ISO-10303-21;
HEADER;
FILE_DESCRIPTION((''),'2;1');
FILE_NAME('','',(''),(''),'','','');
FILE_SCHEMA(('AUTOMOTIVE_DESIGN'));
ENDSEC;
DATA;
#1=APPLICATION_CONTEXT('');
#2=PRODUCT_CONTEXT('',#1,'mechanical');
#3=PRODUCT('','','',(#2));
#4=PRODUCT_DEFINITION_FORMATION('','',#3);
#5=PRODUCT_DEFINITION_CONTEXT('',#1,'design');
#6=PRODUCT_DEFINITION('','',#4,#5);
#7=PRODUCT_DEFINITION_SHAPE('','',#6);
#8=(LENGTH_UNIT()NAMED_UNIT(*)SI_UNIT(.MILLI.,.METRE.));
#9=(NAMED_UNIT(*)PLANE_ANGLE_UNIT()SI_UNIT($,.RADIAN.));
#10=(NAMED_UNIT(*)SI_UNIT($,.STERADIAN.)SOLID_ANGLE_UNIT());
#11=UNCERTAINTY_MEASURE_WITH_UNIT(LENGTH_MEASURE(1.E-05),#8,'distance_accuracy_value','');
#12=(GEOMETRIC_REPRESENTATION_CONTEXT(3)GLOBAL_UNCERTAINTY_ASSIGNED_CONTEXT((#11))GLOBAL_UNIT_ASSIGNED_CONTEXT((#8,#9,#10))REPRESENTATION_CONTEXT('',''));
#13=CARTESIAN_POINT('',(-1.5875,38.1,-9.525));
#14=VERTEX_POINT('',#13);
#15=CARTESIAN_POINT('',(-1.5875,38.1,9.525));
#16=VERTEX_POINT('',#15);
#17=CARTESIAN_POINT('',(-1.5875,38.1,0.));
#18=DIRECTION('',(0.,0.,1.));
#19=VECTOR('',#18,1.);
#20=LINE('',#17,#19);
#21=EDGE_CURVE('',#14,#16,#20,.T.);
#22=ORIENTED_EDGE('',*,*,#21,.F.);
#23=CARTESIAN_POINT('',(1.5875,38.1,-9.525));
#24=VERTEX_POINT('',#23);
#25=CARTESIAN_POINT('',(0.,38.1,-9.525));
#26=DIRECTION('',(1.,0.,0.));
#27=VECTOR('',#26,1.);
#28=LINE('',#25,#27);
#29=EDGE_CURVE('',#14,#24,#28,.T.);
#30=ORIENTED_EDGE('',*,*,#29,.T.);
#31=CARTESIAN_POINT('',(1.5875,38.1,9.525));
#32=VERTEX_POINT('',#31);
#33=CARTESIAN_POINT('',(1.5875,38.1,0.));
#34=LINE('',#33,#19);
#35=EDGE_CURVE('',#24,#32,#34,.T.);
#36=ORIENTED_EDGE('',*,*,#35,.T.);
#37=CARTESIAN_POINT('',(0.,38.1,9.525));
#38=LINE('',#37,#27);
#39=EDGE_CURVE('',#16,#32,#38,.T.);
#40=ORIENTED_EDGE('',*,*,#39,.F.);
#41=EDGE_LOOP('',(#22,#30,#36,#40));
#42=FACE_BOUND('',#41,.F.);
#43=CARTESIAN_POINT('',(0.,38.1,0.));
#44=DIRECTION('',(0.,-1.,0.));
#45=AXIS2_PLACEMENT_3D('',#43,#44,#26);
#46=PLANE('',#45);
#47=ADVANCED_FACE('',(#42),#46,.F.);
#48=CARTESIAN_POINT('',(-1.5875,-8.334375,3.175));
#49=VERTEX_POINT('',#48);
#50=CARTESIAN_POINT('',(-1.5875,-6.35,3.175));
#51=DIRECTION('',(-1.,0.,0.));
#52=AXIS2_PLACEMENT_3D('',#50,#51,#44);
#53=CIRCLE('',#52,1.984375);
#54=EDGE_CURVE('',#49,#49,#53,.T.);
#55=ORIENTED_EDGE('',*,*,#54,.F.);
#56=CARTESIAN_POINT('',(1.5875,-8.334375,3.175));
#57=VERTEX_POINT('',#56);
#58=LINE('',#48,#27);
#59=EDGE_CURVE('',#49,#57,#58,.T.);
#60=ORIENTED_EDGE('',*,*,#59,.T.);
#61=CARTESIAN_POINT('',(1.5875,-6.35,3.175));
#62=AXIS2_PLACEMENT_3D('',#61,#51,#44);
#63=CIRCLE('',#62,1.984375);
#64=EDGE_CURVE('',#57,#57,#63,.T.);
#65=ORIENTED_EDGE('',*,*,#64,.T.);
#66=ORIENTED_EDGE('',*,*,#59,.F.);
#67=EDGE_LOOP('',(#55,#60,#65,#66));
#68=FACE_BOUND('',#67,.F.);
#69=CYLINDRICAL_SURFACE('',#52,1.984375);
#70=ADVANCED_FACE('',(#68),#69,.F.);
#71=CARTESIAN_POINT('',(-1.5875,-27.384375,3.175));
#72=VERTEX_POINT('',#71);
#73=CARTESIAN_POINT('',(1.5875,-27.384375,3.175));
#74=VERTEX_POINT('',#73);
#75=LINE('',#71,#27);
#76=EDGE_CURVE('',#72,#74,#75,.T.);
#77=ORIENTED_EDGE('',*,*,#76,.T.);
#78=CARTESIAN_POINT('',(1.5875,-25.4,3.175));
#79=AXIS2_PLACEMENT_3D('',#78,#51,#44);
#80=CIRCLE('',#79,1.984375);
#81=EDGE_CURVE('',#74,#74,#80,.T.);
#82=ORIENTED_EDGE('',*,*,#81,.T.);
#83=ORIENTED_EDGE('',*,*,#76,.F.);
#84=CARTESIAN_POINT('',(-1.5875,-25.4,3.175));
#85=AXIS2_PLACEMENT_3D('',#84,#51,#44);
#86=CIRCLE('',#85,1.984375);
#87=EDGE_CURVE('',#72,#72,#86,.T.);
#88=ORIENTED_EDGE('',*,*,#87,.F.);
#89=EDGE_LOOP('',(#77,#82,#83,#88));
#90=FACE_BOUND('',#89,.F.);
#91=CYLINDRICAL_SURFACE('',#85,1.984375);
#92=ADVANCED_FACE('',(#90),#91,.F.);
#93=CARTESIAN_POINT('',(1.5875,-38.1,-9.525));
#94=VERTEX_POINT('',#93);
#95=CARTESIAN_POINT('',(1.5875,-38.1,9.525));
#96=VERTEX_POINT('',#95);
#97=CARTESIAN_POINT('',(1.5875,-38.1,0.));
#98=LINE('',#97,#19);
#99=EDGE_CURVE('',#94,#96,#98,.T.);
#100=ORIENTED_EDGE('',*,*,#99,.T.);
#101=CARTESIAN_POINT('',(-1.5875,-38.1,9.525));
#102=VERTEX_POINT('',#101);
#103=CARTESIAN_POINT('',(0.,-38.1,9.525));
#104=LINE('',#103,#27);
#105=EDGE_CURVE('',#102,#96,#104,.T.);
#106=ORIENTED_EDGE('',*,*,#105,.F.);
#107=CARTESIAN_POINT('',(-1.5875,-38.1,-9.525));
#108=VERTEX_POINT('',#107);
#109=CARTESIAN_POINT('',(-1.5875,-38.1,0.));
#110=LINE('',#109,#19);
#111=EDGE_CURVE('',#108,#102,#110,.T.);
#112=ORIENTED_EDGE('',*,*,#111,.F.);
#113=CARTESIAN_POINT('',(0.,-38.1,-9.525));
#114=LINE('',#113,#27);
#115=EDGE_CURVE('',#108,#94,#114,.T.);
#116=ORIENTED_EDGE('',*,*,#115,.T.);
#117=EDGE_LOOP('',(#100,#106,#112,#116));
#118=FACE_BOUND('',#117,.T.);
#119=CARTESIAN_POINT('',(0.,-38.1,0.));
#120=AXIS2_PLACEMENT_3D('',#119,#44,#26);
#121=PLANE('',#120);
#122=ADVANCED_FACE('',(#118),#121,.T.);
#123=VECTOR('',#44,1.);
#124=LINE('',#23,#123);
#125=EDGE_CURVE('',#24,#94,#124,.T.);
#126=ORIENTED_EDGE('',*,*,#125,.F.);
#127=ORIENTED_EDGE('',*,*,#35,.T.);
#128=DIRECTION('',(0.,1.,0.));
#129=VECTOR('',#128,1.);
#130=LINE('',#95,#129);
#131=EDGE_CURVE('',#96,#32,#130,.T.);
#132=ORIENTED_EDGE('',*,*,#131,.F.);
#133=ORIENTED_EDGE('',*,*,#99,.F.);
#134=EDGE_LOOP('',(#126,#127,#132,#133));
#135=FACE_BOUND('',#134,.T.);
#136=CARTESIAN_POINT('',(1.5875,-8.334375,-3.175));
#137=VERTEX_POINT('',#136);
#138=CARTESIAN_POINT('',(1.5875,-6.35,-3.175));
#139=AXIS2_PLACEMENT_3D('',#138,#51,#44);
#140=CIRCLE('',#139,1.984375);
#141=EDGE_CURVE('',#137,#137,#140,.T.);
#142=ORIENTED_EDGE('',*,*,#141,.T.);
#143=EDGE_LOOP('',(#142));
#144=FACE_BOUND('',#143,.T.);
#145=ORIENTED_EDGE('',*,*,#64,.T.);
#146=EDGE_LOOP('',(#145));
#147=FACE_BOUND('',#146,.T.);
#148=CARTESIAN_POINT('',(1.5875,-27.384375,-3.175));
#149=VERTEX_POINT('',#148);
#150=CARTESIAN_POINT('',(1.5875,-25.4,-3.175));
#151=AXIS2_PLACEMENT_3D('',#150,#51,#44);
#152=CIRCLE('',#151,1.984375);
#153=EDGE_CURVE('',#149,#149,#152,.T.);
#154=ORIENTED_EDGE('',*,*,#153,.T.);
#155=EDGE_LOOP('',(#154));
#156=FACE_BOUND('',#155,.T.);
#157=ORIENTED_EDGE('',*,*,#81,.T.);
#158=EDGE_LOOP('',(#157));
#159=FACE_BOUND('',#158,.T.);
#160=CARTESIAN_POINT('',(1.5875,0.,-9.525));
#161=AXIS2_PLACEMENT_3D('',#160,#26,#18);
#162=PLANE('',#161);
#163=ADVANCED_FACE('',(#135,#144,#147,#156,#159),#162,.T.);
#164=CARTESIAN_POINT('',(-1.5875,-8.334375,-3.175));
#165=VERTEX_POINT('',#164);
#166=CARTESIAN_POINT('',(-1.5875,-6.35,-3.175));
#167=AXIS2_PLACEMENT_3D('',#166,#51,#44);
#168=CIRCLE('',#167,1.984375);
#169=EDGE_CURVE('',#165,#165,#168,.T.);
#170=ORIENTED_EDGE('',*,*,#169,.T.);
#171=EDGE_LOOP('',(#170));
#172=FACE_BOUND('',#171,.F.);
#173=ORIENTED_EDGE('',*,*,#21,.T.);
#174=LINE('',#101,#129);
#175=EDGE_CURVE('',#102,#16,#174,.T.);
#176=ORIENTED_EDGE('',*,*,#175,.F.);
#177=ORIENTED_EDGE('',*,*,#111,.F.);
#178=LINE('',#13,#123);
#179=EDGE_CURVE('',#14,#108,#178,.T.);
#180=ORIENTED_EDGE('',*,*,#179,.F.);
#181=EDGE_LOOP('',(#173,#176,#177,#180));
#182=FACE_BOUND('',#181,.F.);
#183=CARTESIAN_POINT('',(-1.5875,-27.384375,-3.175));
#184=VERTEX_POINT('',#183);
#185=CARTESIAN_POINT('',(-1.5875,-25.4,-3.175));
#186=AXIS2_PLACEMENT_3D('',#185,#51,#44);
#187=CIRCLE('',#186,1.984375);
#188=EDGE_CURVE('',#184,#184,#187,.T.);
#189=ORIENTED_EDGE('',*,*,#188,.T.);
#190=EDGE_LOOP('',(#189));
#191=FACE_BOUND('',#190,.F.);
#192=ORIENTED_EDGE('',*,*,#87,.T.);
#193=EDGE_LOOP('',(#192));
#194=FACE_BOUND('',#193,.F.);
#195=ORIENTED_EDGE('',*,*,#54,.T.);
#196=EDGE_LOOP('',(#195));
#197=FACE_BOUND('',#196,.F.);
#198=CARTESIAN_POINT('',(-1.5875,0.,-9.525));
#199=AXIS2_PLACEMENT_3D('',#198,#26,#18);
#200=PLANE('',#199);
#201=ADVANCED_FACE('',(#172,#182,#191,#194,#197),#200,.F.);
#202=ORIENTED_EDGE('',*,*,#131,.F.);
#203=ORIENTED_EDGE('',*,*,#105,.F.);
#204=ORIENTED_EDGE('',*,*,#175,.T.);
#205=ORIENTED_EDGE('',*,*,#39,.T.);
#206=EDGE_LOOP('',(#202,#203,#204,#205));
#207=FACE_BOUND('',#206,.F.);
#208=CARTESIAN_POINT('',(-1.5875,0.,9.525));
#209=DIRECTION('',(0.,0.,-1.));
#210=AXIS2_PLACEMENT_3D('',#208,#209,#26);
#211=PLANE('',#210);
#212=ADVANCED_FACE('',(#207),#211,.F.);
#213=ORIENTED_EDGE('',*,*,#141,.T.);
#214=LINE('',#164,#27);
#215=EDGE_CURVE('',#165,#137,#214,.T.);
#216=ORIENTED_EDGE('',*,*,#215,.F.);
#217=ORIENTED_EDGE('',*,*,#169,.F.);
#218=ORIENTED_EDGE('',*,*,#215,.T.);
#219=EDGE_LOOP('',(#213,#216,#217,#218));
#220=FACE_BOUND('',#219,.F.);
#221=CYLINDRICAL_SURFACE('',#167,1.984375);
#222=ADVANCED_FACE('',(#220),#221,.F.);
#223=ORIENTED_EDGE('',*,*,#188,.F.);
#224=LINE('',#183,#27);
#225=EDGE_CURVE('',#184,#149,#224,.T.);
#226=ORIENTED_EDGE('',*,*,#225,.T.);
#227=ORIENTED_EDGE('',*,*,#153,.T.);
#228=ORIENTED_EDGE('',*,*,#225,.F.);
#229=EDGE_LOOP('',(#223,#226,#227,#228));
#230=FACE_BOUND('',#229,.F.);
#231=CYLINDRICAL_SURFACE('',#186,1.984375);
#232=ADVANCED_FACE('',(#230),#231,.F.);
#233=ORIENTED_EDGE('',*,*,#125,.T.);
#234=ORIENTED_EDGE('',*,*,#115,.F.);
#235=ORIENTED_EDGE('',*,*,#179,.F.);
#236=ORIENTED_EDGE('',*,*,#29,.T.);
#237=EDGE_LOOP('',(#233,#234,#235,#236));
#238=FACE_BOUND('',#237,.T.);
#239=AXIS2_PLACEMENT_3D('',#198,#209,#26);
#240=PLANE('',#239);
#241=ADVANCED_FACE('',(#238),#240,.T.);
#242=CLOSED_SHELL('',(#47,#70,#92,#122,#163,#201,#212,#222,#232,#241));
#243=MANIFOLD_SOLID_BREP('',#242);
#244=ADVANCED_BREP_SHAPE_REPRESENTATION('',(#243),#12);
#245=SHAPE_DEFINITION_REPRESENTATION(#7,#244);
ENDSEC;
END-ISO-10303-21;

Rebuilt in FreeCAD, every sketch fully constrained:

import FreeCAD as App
import Part
import Sketcher
Q = App.Units.Quantity

doc = App.newDocument("Part")
body = doc.addObject("PartDesign::Body", "Body")

sketch1 = body.newObject("Sketcher::SketchObject", "Sketch")
sketch1.AttachmentSupport = (doc.getObject("XZ_Plane"), [""])
sketch1.MapMode = "FlatFace"
sketch1.addGeometry([
    Part.LineSegment(App.Vector(-1.6, 9.5, 0), App.Vector(-1.6, -9.5, 0)),
    Part.LineSegment(App.Vector(-1.6, -9.5, 0), App.Vector(1.6, -9.5, 0)),
    Part.LineSegment(App.Vector(1.6, -9.5, 0), App.Vector(1.6, 9.5, 0)),
    Part.LineSegment(App.Vector(1.6, 9.5, 0), App.Vector(-1.6, 9.5, 0)),
], False)
sketch1.addConstraint([
    Sketcher.Constraint("Coincident", 0, 2, 1, 1),
    Sketcher.Constraint("Coincident", 1, 2, 2, 1),
    Sketcher.Constraint("Coincident", 2, 2, 3, 1),
    Sketcher.Constraint("Coincident", 3, 2, 0, 1),
    Sketcher.Constraint("Vertical", 0),
    Sketcher.Constraint("Horizontal", 1),
    Sketcher.Constraint("Vertical", 2),
    Sketcher.Constraint("Horizontal", 3),
    Sketcher.Constraint("Symmetric", 0, 2, 2, 2, -1, 1),
    Sketcher.Constraint("DistanceY", 0, 2, 0, 1, Q("0.75 in")),
    Sketcher.Constraint("DistanceX", 1, 1, 1, 2, Q("0.125 in")),
])
pad1 = body.newObject("PartDesign::Pad", "Pad")
pad1.Profile = sketch1
pad1.Length = Q("3 in")
pad1.Midplane = True

sketch2 = body.newObject("Sketcher::SketchObject", "Sketch001")
sketch2.AttachmentSupport = (doc.getObject("YZ_Plane"), [""])
sketch2.MapMode = "FlatFace"
sketch2.AttachmentOffset = App.Placement(App.Vector(0, 0, -0.0625 * 25.4), App.Rotation())
sketch2.addGeometry(Part.Circle(App.Vector(-6.3, 3.2, 0), App.Vector(0, 0, 1), 2), False)
sketch2.addConstraint([
    Sketcher.Constraint("Diameter", 0, Q("0.15625 in")),
    Sketcher.Constraint("DistanceX", 0, 3, -1, 1, Q("0.25 in")),
    Sketcher.Constraint("DistanceY", -1, 1, 0, 3, Q("0.125 in")),
])
pocket1 = body.newObject("PartDesign::Pocket", "Pocket")
pocket1.Profile = sketch2
pocket1.Length = Q("0.125 in")
pocket1.Reversed = True

sketch3 = body.newObject("Sketcher::SketchObject", "Sketch002")
sketch3.AttachmentSupport = (doc.getObject("YZ_Plane"), [""])
sketch3.MapMode = "FlatFace"
sketch3.AttachmentOffset = App.Placement(App.Vector(0, 0, -0.0625 * 25.4), App.Rotation())
sketch3.addGeometry(Part.Circle(App.Vector(-6.3, -3.2, 0), App.Vector(0, 0, 1), 2), False)
sketch3.addConstraint([
    Sketcher.Constraint("Diameter", 0, Q("0.15625 in")),
    Sketcher.Constraint("DistanceX", 0, 3, -1, 1, Q("0.25 in")),
    Sketcher.Constraint("DistanceY", 0, 3, -1, 1, Q("0.125 in")),
])
pocket2 = body.newObject("PartDesign::Pocket", "Pocket001")
pocket2.Profile = sketch3
pocket2.Length = Q("0.125 in")
pocket2.Reversed = True

sketch4 = body.newObject("Sketcher::SketchObject", "Sketch003")
sketch4.AttachmentSupport = (doc.getObject("YZ_Plane"), [""])
sketch4.MapMode = "FlatFace"
sketch4.AttachmentOffset = App.Placement(App.Vector(0, 0, -0.0625 * 25.4), App.Rotation())
sketch4.addGeometry(Part.Circle(App.Vector(-25.4, 3.2, 0), App.Vector(0, 0, 1), 2), False)
sketch4.addConstraint([
    Sketcher.Constraint("Diameter", 0, Q("0.15625 in")),
    Sketcher.Constraint("DistanceX", 0, 3, -1, 1, Q("1 in")),
    Sketcher.Constraint("DistanceY", -1, 1, 0, 3, Q("0.125 in")),
])
pocket3 = body.newObject("PartDesign::Pocket", "Pocket002")
pocket3.Profile = sketch4
pocket3.Length = Q("0.125 in")
pocket3.Reversed = True

sketch5 = body.newObject("Sketcher::SketchObject", "Sketch004")
sketch5.AttachmentSupport = (doc.getObject("YZ_Plane"), [""])
sketch5.MapMode = "FlatFace"
sketch5.AttachmentOffset = App.Placement(App.Vector(0, 0, -0.0625 * 25.4), App.Rotation())
sketch5.addGeometry(Part.Circle(App.Vector(-25.4, -3.2, 0), App.Vector(0, 0, 1), 2), False)
sketch5.addConstraint([
    Sketcher.Constraint("Diameter", 0, Q("0.15625 in")),
    Sketcher.Constraint("DistanceX", 0, 3, -1, 1, Q("1 in")),
    Sketcher.Constraint("DistanceY", 0, 3, -1, 1, Q("0.125 in")),
])
pocket4 = body.newObject("PartDesign::Pocket", "Pocket003")
pocket4.Profile = sketch5
pocket4.Length = Q("0.125 in")
pocket4.Reversed = True

doc.recompute()
